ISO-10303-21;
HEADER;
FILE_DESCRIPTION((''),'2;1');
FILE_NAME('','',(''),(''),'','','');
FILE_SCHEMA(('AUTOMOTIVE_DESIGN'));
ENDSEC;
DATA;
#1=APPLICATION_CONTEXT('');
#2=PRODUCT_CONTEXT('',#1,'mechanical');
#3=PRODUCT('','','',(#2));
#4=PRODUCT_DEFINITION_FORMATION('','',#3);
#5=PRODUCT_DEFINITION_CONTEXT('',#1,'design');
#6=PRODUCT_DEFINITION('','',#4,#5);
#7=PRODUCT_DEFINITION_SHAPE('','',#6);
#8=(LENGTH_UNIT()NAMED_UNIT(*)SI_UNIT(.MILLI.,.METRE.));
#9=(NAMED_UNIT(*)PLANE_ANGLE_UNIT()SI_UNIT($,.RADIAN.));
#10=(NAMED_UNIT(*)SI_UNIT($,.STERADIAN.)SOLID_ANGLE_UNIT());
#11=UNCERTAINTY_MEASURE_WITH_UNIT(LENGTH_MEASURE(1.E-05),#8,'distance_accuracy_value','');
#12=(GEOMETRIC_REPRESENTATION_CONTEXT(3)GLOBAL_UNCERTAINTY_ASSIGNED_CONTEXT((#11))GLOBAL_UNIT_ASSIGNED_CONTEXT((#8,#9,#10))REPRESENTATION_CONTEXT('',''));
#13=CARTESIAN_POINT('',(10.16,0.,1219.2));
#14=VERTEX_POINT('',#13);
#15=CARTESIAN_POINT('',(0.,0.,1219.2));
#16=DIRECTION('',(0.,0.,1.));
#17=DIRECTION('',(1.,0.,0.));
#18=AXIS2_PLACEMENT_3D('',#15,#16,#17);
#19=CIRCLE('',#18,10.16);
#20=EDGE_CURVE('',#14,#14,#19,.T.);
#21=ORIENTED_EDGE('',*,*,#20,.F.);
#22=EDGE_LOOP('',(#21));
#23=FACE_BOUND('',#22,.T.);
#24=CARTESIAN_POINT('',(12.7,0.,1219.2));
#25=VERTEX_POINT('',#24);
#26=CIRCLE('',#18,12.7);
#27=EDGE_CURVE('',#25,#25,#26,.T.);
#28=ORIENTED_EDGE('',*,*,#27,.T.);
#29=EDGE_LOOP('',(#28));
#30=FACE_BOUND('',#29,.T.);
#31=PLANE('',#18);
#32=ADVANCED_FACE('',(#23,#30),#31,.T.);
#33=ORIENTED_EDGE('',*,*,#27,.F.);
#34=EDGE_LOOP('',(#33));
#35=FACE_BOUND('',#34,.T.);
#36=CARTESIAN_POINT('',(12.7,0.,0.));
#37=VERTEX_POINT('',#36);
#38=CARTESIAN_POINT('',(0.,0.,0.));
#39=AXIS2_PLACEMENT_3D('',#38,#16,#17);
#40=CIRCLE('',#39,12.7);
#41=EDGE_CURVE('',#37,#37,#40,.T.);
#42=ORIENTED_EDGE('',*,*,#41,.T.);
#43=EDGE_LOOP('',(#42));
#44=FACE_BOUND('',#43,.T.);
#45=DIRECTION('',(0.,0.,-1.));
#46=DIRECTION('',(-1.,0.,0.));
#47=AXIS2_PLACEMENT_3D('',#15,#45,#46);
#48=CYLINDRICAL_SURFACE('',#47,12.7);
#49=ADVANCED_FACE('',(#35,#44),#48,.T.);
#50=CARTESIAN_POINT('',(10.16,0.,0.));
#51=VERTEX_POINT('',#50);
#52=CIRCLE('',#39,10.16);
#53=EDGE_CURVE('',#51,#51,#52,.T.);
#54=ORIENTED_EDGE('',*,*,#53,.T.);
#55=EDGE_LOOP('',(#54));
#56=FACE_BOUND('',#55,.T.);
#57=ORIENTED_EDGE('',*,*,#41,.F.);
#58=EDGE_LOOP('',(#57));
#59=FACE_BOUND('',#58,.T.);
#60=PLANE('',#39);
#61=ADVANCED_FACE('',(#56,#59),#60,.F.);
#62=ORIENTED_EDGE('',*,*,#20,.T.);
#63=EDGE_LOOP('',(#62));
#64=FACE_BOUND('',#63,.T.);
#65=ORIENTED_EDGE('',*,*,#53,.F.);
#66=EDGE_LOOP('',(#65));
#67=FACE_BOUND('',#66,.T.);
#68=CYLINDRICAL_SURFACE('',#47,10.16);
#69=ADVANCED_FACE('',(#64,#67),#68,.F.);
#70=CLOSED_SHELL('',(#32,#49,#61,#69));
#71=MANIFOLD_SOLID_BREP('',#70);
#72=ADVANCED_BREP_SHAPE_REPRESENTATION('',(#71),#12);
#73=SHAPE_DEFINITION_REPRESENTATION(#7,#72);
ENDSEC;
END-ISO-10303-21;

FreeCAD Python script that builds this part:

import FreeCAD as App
import Part
import Sketcher

V = App.Vector
Q = App.Units.Quantity

doc = App.newDocument("Part")
params = doc.addObject("Spreadsheet::Sheet", "Params")
for row, (alias, value) in enumerate([
    ("sketch1_diameter", "1 in"),
    ("sketch1_diameter2", "0.8 in"),
    ("pad1_length", "48 in"),
], start=1):
    params.set(f"A{row}", alias)
    params.set(f"B{row}", "=" + value)
    params.setAlias(f"B{row}", alias)

body = doc.addObject("PartDesign::Body", "Body")

sketch1 = body.newObject("Sketcher::SketchObject", "Sketch")
sketch1.AttachmentSupport = (doc.getObject("XY_Plane"), [""])
sketch1.MapMode = "FlatFace"
sketch1.addGeometry(Part.Circle(V(0, 0, 0), V(0, 0, 1), 13), False)
sketch1.addGeometry(Part.Circle(V(0, 0, 0), V(0, 0, 1), 10), False)
sketch1.addConstraint(Sketcher.Constraint("Coincident", 0, 3, -1, 1))
sketch1.addConstraint(Sketcher.Constraint("Coincident", 1, 3, -1, 1))
sketch1.addConstraint(Sketcher.Constraint("Diameter", 0, Q("1 in")))
sketch1.addConstraint(Sketcher.Constraint("Diameter", 1, Q("0.8 in")))
sketch1.setExpression("Constraints[2]", "Params.sketch1_diameter")
sketch1.setExpression("Constraints[3]", "Params.sketch1_diameter2")
pad1 = body.newObject("PartDesign::Pad", "Pad")
pad1.Profile = sketch1
pad1.setExpression("Length", "Params.pad1_length")

doc.recompute()
